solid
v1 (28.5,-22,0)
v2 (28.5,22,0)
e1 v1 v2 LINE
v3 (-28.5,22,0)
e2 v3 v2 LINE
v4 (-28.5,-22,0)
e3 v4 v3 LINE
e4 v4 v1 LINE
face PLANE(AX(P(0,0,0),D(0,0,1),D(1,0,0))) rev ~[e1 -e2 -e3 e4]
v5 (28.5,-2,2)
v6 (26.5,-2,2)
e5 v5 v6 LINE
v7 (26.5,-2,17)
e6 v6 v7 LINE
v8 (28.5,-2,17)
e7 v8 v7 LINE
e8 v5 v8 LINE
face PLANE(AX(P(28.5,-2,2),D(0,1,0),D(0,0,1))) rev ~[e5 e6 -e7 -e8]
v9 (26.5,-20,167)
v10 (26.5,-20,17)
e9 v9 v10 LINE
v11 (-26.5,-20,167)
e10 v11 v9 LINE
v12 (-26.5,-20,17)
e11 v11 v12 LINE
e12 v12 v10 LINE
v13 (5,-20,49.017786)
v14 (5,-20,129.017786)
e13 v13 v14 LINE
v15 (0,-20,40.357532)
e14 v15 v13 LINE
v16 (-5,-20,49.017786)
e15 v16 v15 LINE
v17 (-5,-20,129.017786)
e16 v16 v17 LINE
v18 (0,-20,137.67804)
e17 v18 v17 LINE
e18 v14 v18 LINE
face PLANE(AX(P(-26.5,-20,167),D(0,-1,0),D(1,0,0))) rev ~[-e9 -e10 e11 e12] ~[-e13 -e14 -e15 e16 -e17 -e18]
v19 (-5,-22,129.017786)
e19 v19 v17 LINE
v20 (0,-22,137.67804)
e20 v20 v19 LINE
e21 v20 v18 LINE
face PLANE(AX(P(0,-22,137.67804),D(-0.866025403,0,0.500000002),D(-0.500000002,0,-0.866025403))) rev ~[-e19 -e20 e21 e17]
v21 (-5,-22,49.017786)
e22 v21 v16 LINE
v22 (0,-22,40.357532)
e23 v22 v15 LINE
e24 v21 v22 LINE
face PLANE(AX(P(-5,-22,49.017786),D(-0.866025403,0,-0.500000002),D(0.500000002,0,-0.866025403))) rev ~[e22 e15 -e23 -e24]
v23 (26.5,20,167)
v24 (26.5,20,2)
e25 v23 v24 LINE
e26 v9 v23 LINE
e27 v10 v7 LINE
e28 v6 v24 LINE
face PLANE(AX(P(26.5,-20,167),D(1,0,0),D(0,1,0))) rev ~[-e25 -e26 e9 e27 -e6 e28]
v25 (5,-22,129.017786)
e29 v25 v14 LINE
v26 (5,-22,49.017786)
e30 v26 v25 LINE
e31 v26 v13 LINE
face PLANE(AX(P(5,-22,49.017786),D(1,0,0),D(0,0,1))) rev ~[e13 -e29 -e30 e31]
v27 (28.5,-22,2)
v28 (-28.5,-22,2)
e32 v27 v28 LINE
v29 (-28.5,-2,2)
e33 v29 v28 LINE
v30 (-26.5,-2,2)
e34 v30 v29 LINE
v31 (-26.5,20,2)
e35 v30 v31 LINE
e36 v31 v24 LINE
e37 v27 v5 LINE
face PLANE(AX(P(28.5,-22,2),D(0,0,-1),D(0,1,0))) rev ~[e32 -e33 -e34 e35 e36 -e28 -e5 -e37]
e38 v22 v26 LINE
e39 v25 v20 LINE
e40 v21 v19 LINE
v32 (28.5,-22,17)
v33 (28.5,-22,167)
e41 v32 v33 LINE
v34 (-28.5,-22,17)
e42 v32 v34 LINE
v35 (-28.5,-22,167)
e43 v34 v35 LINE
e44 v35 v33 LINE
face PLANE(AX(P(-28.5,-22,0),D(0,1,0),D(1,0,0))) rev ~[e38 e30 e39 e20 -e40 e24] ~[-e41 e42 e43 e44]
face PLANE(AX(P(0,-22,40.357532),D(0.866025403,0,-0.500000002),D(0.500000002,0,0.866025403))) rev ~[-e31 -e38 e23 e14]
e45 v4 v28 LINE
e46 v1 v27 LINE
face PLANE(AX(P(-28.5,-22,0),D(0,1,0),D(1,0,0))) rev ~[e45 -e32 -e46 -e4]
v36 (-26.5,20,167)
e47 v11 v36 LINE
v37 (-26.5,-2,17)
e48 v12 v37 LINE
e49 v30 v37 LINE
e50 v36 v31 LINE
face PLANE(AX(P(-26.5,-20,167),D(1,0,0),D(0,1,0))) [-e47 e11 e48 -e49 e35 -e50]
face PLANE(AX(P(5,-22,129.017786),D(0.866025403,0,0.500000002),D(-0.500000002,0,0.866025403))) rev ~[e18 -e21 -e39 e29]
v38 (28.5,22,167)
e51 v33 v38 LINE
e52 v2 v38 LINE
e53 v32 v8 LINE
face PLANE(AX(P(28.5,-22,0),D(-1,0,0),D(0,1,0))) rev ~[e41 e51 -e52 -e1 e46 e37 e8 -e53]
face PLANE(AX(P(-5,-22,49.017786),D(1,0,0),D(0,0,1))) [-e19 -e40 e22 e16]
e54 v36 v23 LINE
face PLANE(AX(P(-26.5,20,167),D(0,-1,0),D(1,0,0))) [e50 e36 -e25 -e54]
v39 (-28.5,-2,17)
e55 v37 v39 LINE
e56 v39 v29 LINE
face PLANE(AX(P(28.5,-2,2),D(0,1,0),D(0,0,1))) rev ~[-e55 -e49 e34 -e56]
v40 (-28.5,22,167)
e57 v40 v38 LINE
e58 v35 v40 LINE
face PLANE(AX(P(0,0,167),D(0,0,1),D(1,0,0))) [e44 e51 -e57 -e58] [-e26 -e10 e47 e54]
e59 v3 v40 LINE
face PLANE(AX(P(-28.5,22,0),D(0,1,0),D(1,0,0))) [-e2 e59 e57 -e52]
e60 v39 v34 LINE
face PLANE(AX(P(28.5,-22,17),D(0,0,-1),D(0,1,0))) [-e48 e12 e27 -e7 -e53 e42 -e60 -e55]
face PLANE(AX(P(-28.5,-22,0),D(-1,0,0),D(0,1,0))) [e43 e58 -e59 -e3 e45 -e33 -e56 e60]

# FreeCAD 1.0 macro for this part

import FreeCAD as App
import Part
import Sketcher
from FreeCAD import Vector
Q = App.Units.Quantity

doc = App.newDocument("Part")
body = doc.addObject("PartDesign::Body", "Body")

sketch1 = doc.addObject("Sketcher::SketchObject", "Sketch")
body.addObject(sketch1)
sketch1.AttachmentSupport = (doc.XY_Plane, [""])
sketch1.MapMode = "FlatFace"
sketch1.addGeometry([
    Part.LineSegment(Vector(-28, 22, 0), Vector(-28, -22, 0)),
    Part.LineSegment(Vector(-28, -22, 0), Vector(28, -22, 0)),
    Part.LineSegment(Vector(28, -22, 0), Vector(28, 22, 0)),
    Part.LineSegment(Vector(28, 22, 0), Vector(-28, 22, 0)),
], False)
sketch1.addConstraint([
    Sketcher.Constraint("Coincident", 0, 2, 1, 1),
    Sketcher.Constraint("Coincident", 1, 2, 2, 1),
    Sketcher.Constraint("Coincident", 2, 2, 3, 1),
    Sketcher.Constraint("Coincident", 3, 2, 0, 1),
    Sketcher.Constraint("Vertical", 0),
    Sketcher.Constraint("Horizontal", 1),
    Sketcher.Constraint("Vertical", 2),
    Sketcher.Constraint("Horizontal", 3),
    Sketcher.Constraint("Symmetric", 0, 2, 2, 2, -1, 1),
    Sketcher.Constraint("DistanceX", 1, 1, 1, 2, 57.0),
    Sketcher.Constraint("DistanceY", 0, 2, 0, 1, 44.0),
])
pad1 = doc.addObject("PartDesign::Pad", "Pad")
body.addObject(pad1)
pad1.Profile = sketch1
pad1.Length = 167

sketch2 = doc.addObject("Sketcher::SketchObject", "Sketch001")
body.addObject(sketch2)
sketch2.AttachmentSupport = (doc.XY_Plane, [""])
sketch2.MapMode = "FlatFace"
sketch2.AttachmentOffset = App.Placement(Vector(0, 0, 167), App.Rotation())
sketch2.addGeometry([
    Part.LineSegment(Vector(-26, 20, 0), Vector(-26, -20, 0)),
    Part.LineSegment(Vector(-26, -20, 0), Vector(26, -20, 0)),
    Part.LineSegment(Vector(26, -20, 0), Vector(26, 20, 0)),
    Part.LineSegment(Vector(26, 20, 0), Vector(-26, 20, 0)),
], False)
sketch2.addConstraint([
    Sketcher.Constraint("Coincident", 0, 2, 1, 1),
    Sketcher.Constraint("Coincident", 1, 2, 2, 1),
    Sketcher.Constraint("Coincident", 2, 2, 3, 1),
    Sketcher.Constraint("Coincident", 3, 2, 0, 1),
    Sketcher.Constraint("Vertical", 0),
    Sketcher.Constraint("Horizontal", 1),
    Sketcher.Constraint("Vertical", 2),
    Sketcher.Constraint("Horizontal", 3),
    Sketcher.Constraint("Symmetric", 0, 2, 2, 2, -1, 1),
    Sketcher.Constraint("DistanceX", 1, 1, 1, 2, 53.0),
    Sketcher.Constraint("DistanceY", 0, 2, 0, 1, 40.0),
])
pocket1 = doc.addObject("PartDesign::Pocket", "Pocket")
body.addObject(pocket1)
pocket1.Profile = sketch2
pocket1.Length = 165

sketch3 = doc.addObject("Sketcher::SketchObject", "Sketch002")
body.addObject(sketch3)
sketch3.AttachmentSupport = (doc.YZ_Plane, [""])
sketch3.MapMode = "FlatFace"
sketch3.AttachmentOffset = App.Placement(Vector(0, 0, 28.5), App.Rotation())
sketch3.addGeometry([
    Part.LineSegment(Vector(-22, 17, 0), Vector(-22, 2, 0)),
    Part.LineSegment(Vector(-22, 2, 0), Vector(-2, 2, 0)),
    Part.LineSegment(Vector(-2, 2, 0), Vector(-2, 17, 0)),
    Part.LineSegment(Vector(-2, 17, 0), Vector(-22, 17, 0)),
], False)
sketch3.addConstraint([
    Sketcher.Constraint("Coincident", 0, 2, 1, 1),
    Sketcher.Constraint("Coincident", 1, 2, 2, 1),
    Sketcher.Constraint("Coincident", 2, 2, 3, 1),
    Sketcher.Constraint("Coincident", 3, 2, 0, 1),
    Sketcher.Constraint("Vertical", 0),
    Sketcher.Constraint("Horizontal", 1),
    Sketcher.Constraint("Vertical", 2),
    Sketcher.Constraint("Horizontal", 3),
    Sketcher.Constraint("DistanceX", 1, 1, 1, 2, 20.0),
    Sketcher.Constraint("DistanceY", 0, 2, 0, 1, 15.0),
    Sketcher.Constraint("DistanceX", 0, 2, -1, 1, 22.0),
    Sketcher.Constraint("DistanceY", -1, 1, 0, 2, 2.0),
])
pocket2 = doc.addObject("PartDesign::Pocket", "Pocket001")
body.addObject(pocket2)
pocket2.Profile = sketch3
pocket2.Length = 84

sketch4 = doc.addObject("Sketcher::SketchObject", "Sketch003")
body.addObject(sketch4)
sketch4.AttachmentSupport = (doc.XZ_Plane, [""])
sketch4.MapMode = "FlatFace"
sketch4.AttachmentOffset = App.Placement(Vector(0, 0, 22), App.Rotation())
sketch4.addGeometry([
    Part.LineSegment(Vector(-5, 49, 0), Vector(0, 40, 0)),
    Part.LineSegment(Vector(0, 40, 0), Vector(5, 49, 0)),
    Part.LineSegment(Vector(5, 49, 0), Vector(5, 129, 0)),
    Part.LineSegment(Vector(5, 129, 0), Vector(0, 138, 0)),
    Part.LineSegment(Vector(0, 138, 0), Vector(-5, 129, 0)),
    Part.LineSegment(Vector(-5, 129, 0), Vector(-5, 49, 0)),
], False)
sketch4.addConstraint([
    Sketcher.Constraint("Coincident", 0, 2, 1, 1),
    Sketcher.Constraint("Coincident", 1, 2, 2, 1),
    Sketcher.Constraint("Coincident", 2, 2, 3, 1),
    Sketcher.Constraint("Coincident", 3, 2, 4, 1),
    Sketcher.Constraint("Coincident", 4, 2, 5, 1),
    Sketcher.Constraint("Coincident", 5, 2, 0, 1),
    Sketcher.Constraint("Vertical", 2),
    Sketcher.Constraint("Vertical", 5),
    Sketcher.Constraint("Symmetric", 2, 2, 4, 2, -2),
    Sketcher.Constraint("PointOnObject", 0, 2, -2),
    Sketcher.Constraint("PointOnObject", 3, 2, -2),
    Sketcher.Constraint("Parallel", 0, 3),
    Sketcher.Constraint("Parallel", 1, 4),
    Sketcher.Constraint("DistanceY", 2, 1, 2, 2, 80.0),
    Sketcher.Constraint("Angle", 0, Q("-60 deg")),
    Sketcher.Constraint("Distance", 0, 10.0),
    Sketcher.Constraint("DistanceY", -1, 1, 3, 2, 137.67804),
])
pocket3 = doc.addObject("PartDesign::Pocket", "Pocket002")
body.addObject(pocket3)
pocket3.Profile = sketch4
pocket3.Length = 2

doc.recompute()
